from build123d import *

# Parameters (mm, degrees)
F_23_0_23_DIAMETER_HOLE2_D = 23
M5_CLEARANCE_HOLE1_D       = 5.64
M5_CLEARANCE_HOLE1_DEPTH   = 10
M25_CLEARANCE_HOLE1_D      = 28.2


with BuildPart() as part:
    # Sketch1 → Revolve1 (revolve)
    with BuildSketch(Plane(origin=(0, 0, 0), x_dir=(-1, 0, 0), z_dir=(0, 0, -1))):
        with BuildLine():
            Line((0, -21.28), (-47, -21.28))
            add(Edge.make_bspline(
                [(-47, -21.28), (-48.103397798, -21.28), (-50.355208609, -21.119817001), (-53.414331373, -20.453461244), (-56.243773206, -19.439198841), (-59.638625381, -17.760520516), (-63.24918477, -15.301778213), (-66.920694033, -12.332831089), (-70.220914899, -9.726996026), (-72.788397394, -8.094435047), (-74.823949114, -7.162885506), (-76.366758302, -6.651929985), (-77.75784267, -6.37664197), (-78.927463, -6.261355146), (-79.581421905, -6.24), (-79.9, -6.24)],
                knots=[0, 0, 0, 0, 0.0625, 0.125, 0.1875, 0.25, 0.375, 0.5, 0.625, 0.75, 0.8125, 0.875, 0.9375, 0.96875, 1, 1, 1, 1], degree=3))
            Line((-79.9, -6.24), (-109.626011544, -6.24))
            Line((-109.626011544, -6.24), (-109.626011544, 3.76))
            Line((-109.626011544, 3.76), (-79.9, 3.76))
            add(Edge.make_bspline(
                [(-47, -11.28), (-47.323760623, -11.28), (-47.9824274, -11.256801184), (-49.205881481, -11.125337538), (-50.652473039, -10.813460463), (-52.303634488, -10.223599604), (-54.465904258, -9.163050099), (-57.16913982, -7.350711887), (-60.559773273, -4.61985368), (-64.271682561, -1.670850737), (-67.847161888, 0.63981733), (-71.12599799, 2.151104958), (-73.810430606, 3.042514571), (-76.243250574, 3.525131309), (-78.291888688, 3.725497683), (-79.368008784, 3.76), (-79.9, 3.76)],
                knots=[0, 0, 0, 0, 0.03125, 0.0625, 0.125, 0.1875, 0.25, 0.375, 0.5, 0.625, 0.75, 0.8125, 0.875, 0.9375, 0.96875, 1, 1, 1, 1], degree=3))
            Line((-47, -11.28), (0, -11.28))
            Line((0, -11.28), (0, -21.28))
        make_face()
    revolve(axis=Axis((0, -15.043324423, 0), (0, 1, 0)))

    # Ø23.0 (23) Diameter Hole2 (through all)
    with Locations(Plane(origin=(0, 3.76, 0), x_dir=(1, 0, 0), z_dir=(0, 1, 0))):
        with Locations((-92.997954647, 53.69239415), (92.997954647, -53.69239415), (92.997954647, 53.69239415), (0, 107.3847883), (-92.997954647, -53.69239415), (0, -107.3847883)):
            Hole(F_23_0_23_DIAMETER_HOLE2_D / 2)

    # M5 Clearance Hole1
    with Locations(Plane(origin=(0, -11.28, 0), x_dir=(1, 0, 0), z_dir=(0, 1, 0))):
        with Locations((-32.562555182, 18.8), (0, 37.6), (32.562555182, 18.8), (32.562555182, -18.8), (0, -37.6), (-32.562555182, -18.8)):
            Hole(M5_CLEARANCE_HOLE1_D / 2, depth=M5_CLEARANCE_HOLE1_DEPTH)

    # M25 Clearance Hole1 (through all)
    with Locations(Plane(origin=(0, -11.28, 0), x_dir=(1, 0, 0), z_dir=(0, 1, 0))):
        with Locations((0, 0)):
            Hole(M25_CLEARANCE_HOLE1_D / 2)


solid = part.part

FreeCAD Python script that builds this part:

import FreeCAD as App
import Part
import Sketcher

V = App.Vector

doc = App.newDocument("Part")
body = doc.addObject("PartDesign::Body", "Body")

sketch1 = doc.addObject("Sketcher::SketchObject", "Sketch")
body.addObject(sketch1)
sketch1.AttachmentSupport = (doc.XY_Plane, [""])
sketch1.MapMode = "FlatFace"
sketch1.addGeometry(Part.LineSegment(V(47, -21.28, 0), V(0, -21.28, 0)), False)
sketch1.addGeometry(Part.LineSegment(V(0, -21.28, 0), V(0, -11.28, 0)), False)
sketch1.addGeometry(Part.LineSegment(V(0, -11.28, 0), V(47, -11.28, 0)), False)
sketch1.addGeometry(Part.BSplineCurve([V(47, -11.28, 0), V(47.323761, -11.28, 0), V(47.982427, -11.256801, 0), V(49.205881, -11.125338, 0), V(50.652473, -10.81346, 0), V(52.303634, -10.2236, 0), V(54.465904, -9.16305, 0), V(57.16914, -7.350712, 0), V(60.559773, -4.619854, 0), V(64.271683, -1.670851, 0), V(67.847162, 0.639817, 0), V(71.125998, 2.151105, 0), V(73.810431, 3.042515, 0), V(76.243251, 3.525131, 0), V(78.291889, 3.725498, 0), V(79.368009, 3.76, 0), V(79.9, 3.76, 0)], [4, 1, 1, 1, 1, 1, 1, 1, 1, 1, 1, 1, 1, 1, 4], [0, 0.03125, 0.0625, 0.125, 0.1875, 0.25, 0.375, 0.5, 0.625, 0.75, 0.8125, 0.875, 0.9375, 0.96875, 1], False, 3, [1, 1, 1, 1, 1, 1, 1, 1, 1, 1, 1, 1, 1, 1, 1, 1, 1], False), False)
sketch1.addGeometry(Part.LineSegment(V(79.9, 3.76, 0), V(109.626012, 3.76, 0)), False)
sketch1.addGeometry(Part.LineSegment(V(109.626012, 3.76, 0), V(109.626012, -6.24, 0)), False)
sketch1.addGeometry(Part.LineSegment(V(109.626012, -6.24, 0), V(79.9, -6.24, 0)), False)
sketch1.addGeometry(Part.BSplineCurve([V(47, -21.28, 0), V(48.103398, -21.28, 0), V(50.355209, -21.119817, 0), V(53.414331, -20.453461, 0), V(56.243773, -19.439199, 0), V(59.638625, -17.760521, 0), V(63.249185, -15.301778, 0), V(66.920694, -12.332831, 0), V(70.220915, -9.726996, 0), V(72.788397, -8.094435, 0), V(74.823949, -7.162886, 0), V(76.366758, -6.65193, 0), V(77.757843, -6.376642, 0), V(78.927463, -6.261355, 0), V(79.581422, -6.24, 0), V(79.9, -6.24, 0)], [4, 1, 1, 1, 1, 1, 1, 1, 1, 1, 1, 1, 1, 4], [0, 0.0625, 0.125, 0.1875, 0.25, 0.375, 0.5, 0.625, 0.75, 0.8125, 0.875, 0.9375, 0.96875, 1], False, 3, [1, 1, 1, 1, 1, 1, 1, 1, 1, 1, 1, 1, 1, 1, 1, 1], False), False)
sketch1.addConstraint(Sketcher.Constraint("Block", 3))
sketch1.addConstraint(Sketcher.Constraint("Block", 7))
sketch1.addConstraint(Sketcher.Constraint("Coincident", 0, 2, 1, 1))
sketch1.addConstraint(Sketcher.Constraint("Coincident", 1, 2, 2, 1))
sketch1.addConstraint(Sketcher.Constraint("Coincident", 2, 2, 3, 1))
sketch1.addConstraint(Sketcher.Constraint("Coincident", 3, 2, 4, 1))
sketch1.addConstraint(Sketcher.Constraint("Coincident", 4, 2, 5, 1))
sketch1.addConstraint(Sketcher.Constraint("Coincident", 5, 2, 6, 1))
sketch1.addConstraint(Sketcher.Constraint("Coincident", 6, 2, 7, 2))
sketch1.addConstraint(Sketcher.Constraint("Coincident", 7, 1, 0, 1))
sketch1.addConstraint(Sketcher.Constraint("Horizontal", 0))
sketch1.addConstraint(Sketcher.Constraint("Vertical", 1))
sketch1.addConstraint(Sketcher.Constraint("Horizontal", 2))
sketch1.addConstraint(Sketcher.Constraint("Horizontal", 4))
sketch1.addConstraint(Sketcher.Constraint("Vertical", 5))
sketch1.addConstraint(Sketcher.Constraint("Horizontal", 6))
sketch1.addConstraint(Sketcher.Constraint("PointOnObject", 0, 2, -2))
sketch1.addConstraint(Sketcher.Constraint("DistanceX", 4, 1, 4, 2, 29.726012))
revolution = doc.addObject("PartDesign::Revolution", "Revolution")
body.addObject(revolution)
revolution.Profile = sketch1
revolution.ReferenceAxis = (sketch1, ["V_Axis"])
revolution.Angle = 360

sketch2 = doc.addObject("Sketcher::SketchObject", "Sketch001")
body.addObject(sketch2)
sketch2.AttachmentSupport = (doc.XZ_Plane, [""])
sketch2.MapMode = "FlatFace"
sketch2.AttachmentOffset = App.Placement(V(0, 0, -3.76), App.Rotation())
sketch2.addGeometry(Part.Circle(V(-93, -54, 0), V(0, 0, 1), 12), False)
sketch2.addGeometry(Part.Circle(V(93, 54, 0), V(0, 0, 1), 12), False)
sketch2.addGeometry(Part.Circle(V(93, -54, 0), V(0, 0, 1), 12), False)
sketch2.addGeometry(Part.Circle(V(0, -107, 0), V(0, 0, 1), 12), False)
sketch2.addGeometry(Part.Circle(V(-93, 54, 0), V(0, 0, 1), 12), False)
sketch2.addGeometry(Part.Circle(V(0, 107, 0), V(0, 0, 1), 12), False)
sketch2.addConstraint(Sketcher.Constraint("Equal", 0, 1))
sketch2.addConstraint(Sketcher.Constraint("Equal", 1, 2))
sketch2.addConstraint(Sketcher.Constraint("Equal", 2, 3))
sketch2.addConstraint(Sketcher.Constraint("Equal", 3, 4))
sketch2.addConstraint(Sketcher.Constraint("Equal", 4, 5))
sketch2.addConstraint(Sketcher.Constraint("Symmetric", 0, 3, 1, 3, -1, 1))
sketch2.addConstraint(Sketcher.Constraint("Symmetric", 2, 3, 4, 3, -1, 1))
sketch2.addConstraint(Sketcher.Constraint("Symmetric", 3, 3, 5, 3, -1, 1))
sketch2.addConstraint(Sketcher.Constraint("Symmetric", 0, 3, 2, 3, -2))
sketch2.addConstraint(Sketcher.Constraint("PointOnObject", 3, 3, -2))
sketch2.addConstraint(Sketcher.Constraint("Diameter", 0, 23.0))
sketch2.addConstraint(Sketcher.Constraint("DistanceY", 3, 3, -1, 1, 107.384788))
sketch2.addConstraint(Sketcher.Constraint("DistanceX", 0, 3, 1, 3, 185.995909))
sketch2.addConstraint(Sketcher.Constraint("DistanceY", 0, 3, 1, 3, 107.384788))
doc.recompute()
hole = doc.addObject("PartDesign::Hole", "Hole")
body.addObject(hole)
hole.Profile = sketch2
hole.ThreadType = "None"
hole.Diameter = 23
hole.DepthType = "ThroughAll"
hole.Reversed = True

sketch3 = doc.addObject("Sketcher::SketchObject", "Sketch002")
body.addObject(sketch3)
sketch3.AttachmentSupport = (doc.XZ_Plane, [""])
sketch3.MapMode = "FlatFace"
sketch3.AttachmentOffset = App.Placement(V(0, 0, 11.28), App.Rotation())
sketch3.addGeometry(Part.Circle(V(-32.6, -18.8, 0), V(0, 0, 1), 2.8), False)
sketch3.addGeometry(Part.Circle(V(0, -37.6, 0), V(0, 0, 1), 2.8), False)
sketch3.addGeometry(Part.Circle(V(32.6, -18.8, 0), V(0, 0, 1), 2.8), False)
sketch3.addGeometry(Part.Circle(V(32.6, 18.8, 0), V(0, 0, 1), 2.8), False)
sketch3.addGeometry(Part.Circle(V(0, 37.6, 0), V(0, 0, 1), 2.8), False)
sketch3.addGeometry(Part.Circle(V(-32.6, 18.8, 0), V(0, 0, 1), 2.8), False)
sketch3.addConstraint(Sketcher.Constraint("Equal", 0, 1))
sketch3.addConstraint(Sketcher.Constraint("Equal", 1, 2))
sketch3.addConstraint(Sketcher.Constraint("Equal", 2, 3))
sketch3.addConstraint(Sketcher.Constraint("Equal", 3, 4))
sketch3.addConstraint(Sketcher.Constraint("Equal", 4, 5))
sketch3.addConstraint(Sketcher.Constraint("Symmetric", 0, 3, 3, 3, -1, 1))
sketch3.addConstraint(Sketcher.Constraint("Symmetric", 1, 3, 4, 3, -1, 1))
sketch3.addConstraint(Sketcher.Constraint("Symmetric", 2, 3, 5, 3, -1, 1))
sketch3.addConstraint(Sketcher.Constraint("Symmetric", 0, 3, 2, 3, -2))
sketch3.addConstraint(Sketcher.Constraint("PointOnObject", 1, 3, -2))
sketch3.addConstraint(Sketcher.Constraint("Diameter", 0, 5.64))
sketch3.addConstraint(Sketcher.Constraint("DistanceY", 0, 3, -1, 1, 18.8))
sketch3.addConstraint(Sketcher.Constraint("DistanceY", 1, 3, -1, 1, 37.6))
sketch3.addConstraint(Sketcher.Constraint("DistanceX", 0, 3, 2, 3, 65.12511))
doc.recompute()
hole2 = doc.addObject("PartDesign::Hole", "Hole001")
body.addObject(hole2)
hole2.Profile = sketch3
hole2.ThreadType = "None"
hole2.Diameter = 5.64
hole2.DepthType = "Dimension"
hole2.Depth = 10
hole2.DrillPoint = "Flat"
hole2.Reversed = True

sketch4 = doc.addObject("Sketcher::SketchObject", "Sketch003")
body.addObject(sketch4)
sketch4.AttachmentSupport = (doc.XZ_Plane, [""])
sketch4.MapMode = "FlatFace"
sketch4.AttachmentOffset = App.Placement(V(0, 0, 11.28), App.Rotation())
sketch4.addGeometry(Part.Circle(V(0, 0, 0), V(0, 0, 1), 14), False)
sketch4.addConstraint(Sketcher.Constraint("Coincident", 0, 3, -1, 1))
sketch4.addConstraint(Sketcher.Constraint("Diameter", 0, 28.2))
doc.recompute()
hole3 = doc.addObject("PartDesign::Hole", "Hole002")
body.addObject(hole3)
hole3.Profile = sketch4
hole3.ThreadType = "None"
hole3.Diameter = 28.2
hole3.DepthType = "ThroughAll"
hole3.Reversed = True

doc.recompute()
